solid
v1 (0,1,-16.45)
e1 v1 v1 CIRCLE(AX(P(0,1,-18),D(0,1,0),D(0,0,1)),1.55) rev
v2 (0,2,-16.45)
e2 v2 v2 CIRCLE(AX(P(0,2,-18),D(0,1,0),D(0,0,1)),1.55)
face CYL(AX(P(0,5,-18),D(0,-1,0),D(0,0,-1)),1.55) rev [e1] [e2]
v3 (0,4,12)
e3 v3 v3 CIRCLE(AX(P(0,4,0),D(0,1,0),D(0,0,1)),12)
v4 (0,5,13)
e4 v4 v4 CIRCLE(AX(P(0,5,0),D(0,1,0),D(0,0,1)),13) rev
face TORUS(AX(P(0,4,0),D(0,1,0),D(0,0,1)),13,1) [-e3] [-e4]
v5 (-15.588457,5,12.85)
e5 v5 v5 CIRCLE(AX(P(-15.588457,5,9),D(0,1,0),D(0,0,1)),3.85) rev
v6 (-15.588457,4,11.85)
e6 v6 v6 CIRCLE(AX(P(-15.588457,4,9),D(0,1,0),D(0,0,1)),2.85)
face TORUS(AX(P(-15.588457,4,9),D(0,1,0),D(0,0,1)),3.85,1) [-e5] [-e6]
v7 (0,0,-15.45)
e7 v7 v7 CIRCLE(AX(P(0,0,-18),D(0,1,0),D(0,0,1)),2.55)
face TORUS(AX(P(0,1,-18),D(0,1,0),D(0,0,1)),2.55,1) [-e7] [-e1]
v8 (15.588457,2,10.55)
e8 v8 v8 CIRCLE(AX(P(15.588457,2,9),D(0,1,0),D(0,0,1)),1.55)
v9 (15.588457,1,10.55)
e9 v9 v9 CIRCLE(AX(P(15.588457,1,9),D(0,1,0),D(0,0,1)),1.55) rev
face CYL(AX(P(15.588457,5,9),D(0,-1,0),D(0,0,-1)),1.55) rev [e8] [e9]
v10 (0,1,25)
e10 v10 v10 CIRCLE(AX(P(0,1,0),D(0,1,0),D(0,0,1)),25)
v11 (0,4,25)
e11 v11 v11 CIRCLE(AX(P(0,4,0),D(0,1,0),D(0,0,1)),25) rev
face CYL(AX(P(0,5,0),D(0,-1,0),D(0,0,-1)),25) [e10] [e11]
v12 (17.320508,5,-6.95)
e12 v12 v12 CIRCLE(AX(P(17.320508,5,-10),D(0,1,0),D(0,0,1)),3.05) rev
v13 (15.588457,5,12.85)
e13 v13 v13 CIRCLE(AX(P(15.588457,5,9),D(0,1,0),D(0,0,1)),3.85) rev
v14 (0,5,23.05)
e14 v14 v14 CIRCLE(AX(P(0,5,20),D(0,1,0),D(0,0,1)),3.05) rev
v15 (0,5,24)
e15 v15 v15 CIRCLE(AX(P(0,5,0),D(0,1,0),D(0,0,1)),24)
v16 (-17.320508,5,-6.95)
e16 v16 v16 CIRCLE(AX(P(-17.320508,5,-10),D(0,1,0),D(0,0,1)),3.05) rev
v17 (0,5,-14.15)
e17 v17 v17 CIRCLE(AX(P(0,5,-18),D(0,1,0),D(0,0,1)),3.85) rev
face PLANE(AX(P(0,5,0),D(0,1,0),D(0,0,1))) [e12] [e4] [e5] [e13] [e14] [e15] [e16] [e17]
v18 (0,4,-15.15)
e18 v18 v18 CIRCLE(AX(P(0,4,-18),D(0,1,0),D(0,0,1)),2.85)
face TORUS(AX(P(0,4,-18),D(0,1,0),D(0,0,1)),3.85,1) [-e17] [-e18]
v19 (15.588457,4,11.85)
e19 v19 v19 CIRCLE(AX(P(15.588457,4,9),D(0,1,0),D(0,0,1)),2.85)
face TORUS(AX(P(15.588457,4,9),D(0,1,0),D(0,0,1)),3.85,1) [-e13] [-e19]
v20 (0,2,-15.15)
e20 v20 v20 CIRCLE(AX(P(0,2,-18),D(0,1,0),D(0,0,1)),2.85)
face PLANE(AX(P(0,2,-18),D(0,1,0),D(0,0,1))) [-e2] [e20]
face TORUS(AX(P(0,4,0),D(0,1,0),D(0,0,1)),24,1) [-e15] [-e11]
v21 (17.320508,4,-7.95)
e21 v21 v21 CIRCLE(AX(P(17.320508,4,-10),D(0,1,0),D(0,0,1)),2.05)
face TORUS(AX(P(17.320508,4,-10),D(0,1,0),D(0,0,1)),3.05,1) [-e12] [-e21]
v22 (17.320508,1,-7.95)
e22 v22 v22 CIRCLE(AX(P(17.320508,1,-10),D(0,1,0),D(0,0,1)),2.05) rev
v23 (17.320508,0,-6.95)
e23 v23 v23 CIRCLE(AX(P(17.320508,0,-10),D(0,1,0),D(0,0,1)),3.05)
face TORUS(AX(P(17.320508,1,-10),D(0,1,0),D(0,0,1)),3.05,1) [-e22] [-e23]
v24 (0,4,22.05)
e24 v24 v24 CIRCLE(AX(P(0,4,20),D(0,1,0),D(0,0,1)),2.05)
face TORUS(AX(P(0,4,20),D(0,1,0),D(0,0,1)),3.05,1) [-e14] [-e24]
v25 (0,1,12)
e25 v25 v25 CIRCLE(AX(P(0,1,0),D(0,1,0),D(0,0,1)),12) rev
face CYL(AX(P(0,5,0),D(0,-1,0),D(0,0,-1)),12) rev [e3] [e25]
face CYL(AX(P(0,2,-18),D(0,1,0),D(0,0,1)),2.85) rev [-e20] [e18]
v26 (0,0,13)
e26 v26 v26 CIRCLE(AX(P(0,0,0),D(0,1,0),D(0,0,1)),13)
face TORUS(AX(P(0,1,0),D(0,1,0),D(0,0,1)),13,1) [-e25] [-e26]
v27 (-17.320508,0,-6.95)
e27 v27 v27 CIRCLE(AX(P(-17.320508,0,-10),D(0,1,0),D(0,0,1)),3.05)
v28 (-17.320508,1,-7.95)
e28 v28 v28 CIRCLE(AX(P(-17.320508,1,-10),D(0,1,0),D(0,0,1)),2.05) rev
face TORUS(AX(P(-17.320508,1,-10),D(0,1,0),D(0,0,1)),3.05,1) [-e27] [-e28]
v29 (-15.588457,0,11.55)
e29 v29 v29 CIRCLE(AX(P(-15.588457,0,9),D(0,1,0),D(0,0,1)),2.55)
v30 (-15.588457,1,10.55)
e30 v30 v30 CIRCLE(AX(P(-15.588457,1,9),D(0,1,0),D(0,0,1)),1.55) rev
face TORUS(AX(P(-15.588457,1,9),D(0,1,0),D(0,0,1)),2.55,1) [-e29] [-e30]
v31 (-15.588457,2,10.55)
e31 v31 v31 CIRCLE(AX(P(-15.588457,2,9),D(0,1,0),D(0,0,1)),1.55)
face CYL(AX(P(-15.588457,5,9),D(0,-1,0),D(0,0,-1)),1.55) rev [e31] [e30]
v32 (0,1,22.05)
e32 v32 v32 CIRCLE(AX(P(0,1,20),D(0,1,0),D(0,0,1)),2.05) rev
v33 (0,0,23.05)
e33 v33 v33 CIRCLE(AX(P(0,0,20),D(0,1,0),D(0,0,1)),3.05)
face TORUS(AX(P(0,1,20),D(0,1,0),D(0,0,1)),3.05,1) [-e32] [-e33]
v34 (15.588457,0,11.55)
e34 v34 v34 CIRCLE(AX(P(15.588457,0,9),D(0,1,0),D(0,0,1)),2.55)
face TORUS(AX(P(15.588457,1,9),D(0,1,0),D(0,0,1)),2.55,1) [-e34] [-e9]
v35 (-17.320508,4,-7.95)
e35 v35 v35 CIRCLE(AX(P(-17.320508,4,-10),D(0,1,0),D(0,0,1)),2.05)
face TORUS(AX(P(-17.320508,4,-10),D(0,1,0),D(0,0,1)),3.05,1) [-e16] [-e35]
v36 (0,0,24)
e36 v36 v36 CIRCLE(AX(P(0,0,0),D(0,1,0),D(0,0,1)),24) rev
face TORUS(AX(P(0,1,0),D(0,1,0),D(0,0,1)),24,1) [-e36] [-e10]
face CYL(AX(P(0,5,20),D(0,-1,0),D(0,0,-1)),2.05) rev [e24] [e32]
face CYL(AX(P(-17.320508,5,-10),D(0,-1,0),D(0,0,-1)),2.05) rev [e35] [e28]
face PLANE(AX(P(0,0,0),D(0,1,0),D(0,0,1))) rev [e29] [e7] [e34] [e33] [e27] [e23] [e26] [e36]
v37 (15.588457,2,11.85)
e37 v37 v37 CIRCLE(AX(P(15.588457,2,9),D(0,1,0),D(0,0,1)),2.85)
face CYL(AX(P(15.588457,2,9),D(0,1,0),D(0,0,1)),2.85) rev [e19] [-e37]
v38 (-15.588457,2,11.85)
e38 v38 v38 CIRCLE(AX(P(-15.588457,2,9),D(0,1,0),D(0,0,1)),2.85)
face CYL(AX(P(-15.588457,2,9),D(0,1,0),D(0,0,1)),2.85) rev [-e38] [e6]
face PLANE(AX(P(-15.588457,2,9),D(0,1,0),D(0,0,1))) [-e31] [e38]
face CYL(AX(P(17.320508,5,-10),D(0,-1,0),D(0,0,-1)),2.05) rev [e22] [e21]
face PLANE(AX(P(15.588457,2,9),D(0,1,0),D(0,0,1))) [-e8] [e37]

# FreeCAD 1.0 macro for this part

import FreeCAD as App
import Part
import Sketcher


def edges_at(feature, points):
    """Names of the edges that pass closest to the given points."""
    edges = feature.Shape.Edges
    near = lambda p: min(range(len(edges)), key=lambda i: edges[i].distToShape(Part.Vertex(*p))[0])
    return sorted({f"Edge{near(p) + 1}" for p in points})

doc = App.newDocument("Part")
body = doc.addObject("PartDesign::Body", "Body")

# Sketch on XZ plane
sketch1 = body.newObject("Sketcher::SketchObject", "Sketch")
sketch1.AttachmentSupport = (doc.getObject("XZ_Plane"), [""])
sketch1.MapMode = "FlatFace"
sketch1.addGeometry([
    Part.Circle(App.Vector(0, 0, 0), App.Vector(0, 0, 1), 25),  # 0
    Part.Circle(App.Vector(-17.3, -10, 0), App.Vector(0, 0, 1), 2),  # 1
    Part.Circle(App.Vector(0, -18, 0), App.Vector(0, 0, 1), 1.6),  # 2
    Part.Circle(App.Vector(0, 0, 0), App.Vector(0, 0, 1), 12),  # 3
    Part.Circle(App.Vector(-15.6, 9, 0), App.Vector(0, 0, 1), 1.6),  # 4
    Part.Circle(App.Vector(17.3, -10, 0), App.Vector(0, 0, 1), 2),  # 5
    Part.Circle(App.Vector(0, 20, 0), App.Vector(0, 0, 1), 2),  # 6
    Part.Circle(App.Vector(15.6, 9, 0), App.Vector(0, 0, 1), 1.6),  # 7
], False)
sketch1.addConstraint([
    Sketcher.Constraint("Coincident", 0, 3, -1, 1),
    Sketcher.Constraint("Coincident", 3, 3, -1, 1),
    Sketcher.Constraint("Equal", 2, 4),
    Sketcher.Constraint("Equal", 1, 5),
    Sketcher.Constraint("Equal", 5, 6),
    Sketcher.Constraint("Equal", 4, 7),
    Sketcher.Constraint("Symmetric", 1, 3, 5, 3, -2),
    Sketcher.Constraint("Symmetric", 4, 3, 7, 3, -2),
    Sketcher.Constraint("PointOnObject", 2, 3, -2),
    Sketcher.Constraint("PointOnObject", 6, 3, -2),
    Sketcher.Constraint("Diameter", 0, 50.0),
    Sketcher.Constraint("Diameter", 3, 24.0),
    Sketcher.Constraint("Diameter", 1, 4.1),
    Sketcher.Constraint("Diameter", 2, 3.1),
    Sketcher.Constraint("DistanceY", 1, 3, -1, 1, 10.0),
    Sketcher.Constraint("DistanceY", 2, 3, -1, 1, 18.0),
    Sketcher.Constraint("DistanceY", -1, 1, 4, 3, 9.0),
    Sketcher.Constraint("DistanceY", -1, 1, 6, 3, 20.0),
    Sketcher.Constraint("DistanceX", 1, 3, -1, 1, 17.320508),
    Sketcher.Constraint("DistanceX", 1, 3, 4, 3, 1.732051),
])
pad1 = body.newObject("PartDesign::Pad", "Pad")
pad1.Profile = sketch1
pad1.Length = 5
pad1.Reversed = True

# Sketch on XZ plane
sketch2 = body.newObject("Sketcher::SketchObject", "Sketch001")
sketch2.AttachmentSupport = (doc.getObject("XZ_Plane"), [""])
sketch2.MapMode = "FlatFace"
sketch2.AttachmentOffset = App.Placement(App.Vector(0, 0, -5), App.Rotation())
sketch2.addGeometry([
    Part.Circle(App.Vector(0, -18, 0), App.Vector(0, 0, 1), 2.9),
    Part.Circle(App.Vector(15.6, 9, 0), App.Vector(0, 0, 1), 2.9),
    Part.Circle(App.Vector(-15.6, 9, 0), App.Vector(0, 0, 1), 2.9),
], False)
sketch2.addConstraint([
    Sketcher.Constraint("Equal", 0, 1),
    Sketcher.Constraint("Equal", 1, 2),
    Sketcher.Constraint("Symmetric", 1, 3, 2, 3, -2),
    Sketcher.Constraint("PointOnObject", 0, 3, -2),
    Sketcher.Constraint("Diameter", 0, 5.7),
    Sketcher.Constraint("DistanceY", 0, 3, -1, 1, 18.0),
    Sketcher.Constraint("DistanceY", -1, 1, 1, 3, 9.0),
    Sketcher.Constraint("DistanceX", -1, 1, 1, 3, 15.588457),
])
pocket1 = body.newObject("PartDesign::Pocket", "Pocket")
pocket1.Profile = sketch2
pocket1.Length = 3
pocket1.Reversed = True
doc.recompute()

fillet = body.newObject("PartDesign::Fillet", "Fillet")
fillet.Base = (pocket1, edges_at(pocket1, [
    (0, 0, 17.95),
    (0, 5, 17.95),
    (15.588, 0, 7.45),
    (0, 0, -25),
    (-15.588, 0, 7.45),
    (-17.321, 0, -12.05),
    (-17.321, 5, -12.05),
    (17.321, 0, -12.05),
    (17.321, 5, -12.05),
    (0, 5, -20.85),
    (0, 5, -25),
    (15.588, 5, 6.15),
    (-15.588, 5, 6.15),
    (0, 0, -12),
    (0, 5, -12),
    (0, 0, -19.55),
]))
fillet.Radius = 1

doc.recompute()
